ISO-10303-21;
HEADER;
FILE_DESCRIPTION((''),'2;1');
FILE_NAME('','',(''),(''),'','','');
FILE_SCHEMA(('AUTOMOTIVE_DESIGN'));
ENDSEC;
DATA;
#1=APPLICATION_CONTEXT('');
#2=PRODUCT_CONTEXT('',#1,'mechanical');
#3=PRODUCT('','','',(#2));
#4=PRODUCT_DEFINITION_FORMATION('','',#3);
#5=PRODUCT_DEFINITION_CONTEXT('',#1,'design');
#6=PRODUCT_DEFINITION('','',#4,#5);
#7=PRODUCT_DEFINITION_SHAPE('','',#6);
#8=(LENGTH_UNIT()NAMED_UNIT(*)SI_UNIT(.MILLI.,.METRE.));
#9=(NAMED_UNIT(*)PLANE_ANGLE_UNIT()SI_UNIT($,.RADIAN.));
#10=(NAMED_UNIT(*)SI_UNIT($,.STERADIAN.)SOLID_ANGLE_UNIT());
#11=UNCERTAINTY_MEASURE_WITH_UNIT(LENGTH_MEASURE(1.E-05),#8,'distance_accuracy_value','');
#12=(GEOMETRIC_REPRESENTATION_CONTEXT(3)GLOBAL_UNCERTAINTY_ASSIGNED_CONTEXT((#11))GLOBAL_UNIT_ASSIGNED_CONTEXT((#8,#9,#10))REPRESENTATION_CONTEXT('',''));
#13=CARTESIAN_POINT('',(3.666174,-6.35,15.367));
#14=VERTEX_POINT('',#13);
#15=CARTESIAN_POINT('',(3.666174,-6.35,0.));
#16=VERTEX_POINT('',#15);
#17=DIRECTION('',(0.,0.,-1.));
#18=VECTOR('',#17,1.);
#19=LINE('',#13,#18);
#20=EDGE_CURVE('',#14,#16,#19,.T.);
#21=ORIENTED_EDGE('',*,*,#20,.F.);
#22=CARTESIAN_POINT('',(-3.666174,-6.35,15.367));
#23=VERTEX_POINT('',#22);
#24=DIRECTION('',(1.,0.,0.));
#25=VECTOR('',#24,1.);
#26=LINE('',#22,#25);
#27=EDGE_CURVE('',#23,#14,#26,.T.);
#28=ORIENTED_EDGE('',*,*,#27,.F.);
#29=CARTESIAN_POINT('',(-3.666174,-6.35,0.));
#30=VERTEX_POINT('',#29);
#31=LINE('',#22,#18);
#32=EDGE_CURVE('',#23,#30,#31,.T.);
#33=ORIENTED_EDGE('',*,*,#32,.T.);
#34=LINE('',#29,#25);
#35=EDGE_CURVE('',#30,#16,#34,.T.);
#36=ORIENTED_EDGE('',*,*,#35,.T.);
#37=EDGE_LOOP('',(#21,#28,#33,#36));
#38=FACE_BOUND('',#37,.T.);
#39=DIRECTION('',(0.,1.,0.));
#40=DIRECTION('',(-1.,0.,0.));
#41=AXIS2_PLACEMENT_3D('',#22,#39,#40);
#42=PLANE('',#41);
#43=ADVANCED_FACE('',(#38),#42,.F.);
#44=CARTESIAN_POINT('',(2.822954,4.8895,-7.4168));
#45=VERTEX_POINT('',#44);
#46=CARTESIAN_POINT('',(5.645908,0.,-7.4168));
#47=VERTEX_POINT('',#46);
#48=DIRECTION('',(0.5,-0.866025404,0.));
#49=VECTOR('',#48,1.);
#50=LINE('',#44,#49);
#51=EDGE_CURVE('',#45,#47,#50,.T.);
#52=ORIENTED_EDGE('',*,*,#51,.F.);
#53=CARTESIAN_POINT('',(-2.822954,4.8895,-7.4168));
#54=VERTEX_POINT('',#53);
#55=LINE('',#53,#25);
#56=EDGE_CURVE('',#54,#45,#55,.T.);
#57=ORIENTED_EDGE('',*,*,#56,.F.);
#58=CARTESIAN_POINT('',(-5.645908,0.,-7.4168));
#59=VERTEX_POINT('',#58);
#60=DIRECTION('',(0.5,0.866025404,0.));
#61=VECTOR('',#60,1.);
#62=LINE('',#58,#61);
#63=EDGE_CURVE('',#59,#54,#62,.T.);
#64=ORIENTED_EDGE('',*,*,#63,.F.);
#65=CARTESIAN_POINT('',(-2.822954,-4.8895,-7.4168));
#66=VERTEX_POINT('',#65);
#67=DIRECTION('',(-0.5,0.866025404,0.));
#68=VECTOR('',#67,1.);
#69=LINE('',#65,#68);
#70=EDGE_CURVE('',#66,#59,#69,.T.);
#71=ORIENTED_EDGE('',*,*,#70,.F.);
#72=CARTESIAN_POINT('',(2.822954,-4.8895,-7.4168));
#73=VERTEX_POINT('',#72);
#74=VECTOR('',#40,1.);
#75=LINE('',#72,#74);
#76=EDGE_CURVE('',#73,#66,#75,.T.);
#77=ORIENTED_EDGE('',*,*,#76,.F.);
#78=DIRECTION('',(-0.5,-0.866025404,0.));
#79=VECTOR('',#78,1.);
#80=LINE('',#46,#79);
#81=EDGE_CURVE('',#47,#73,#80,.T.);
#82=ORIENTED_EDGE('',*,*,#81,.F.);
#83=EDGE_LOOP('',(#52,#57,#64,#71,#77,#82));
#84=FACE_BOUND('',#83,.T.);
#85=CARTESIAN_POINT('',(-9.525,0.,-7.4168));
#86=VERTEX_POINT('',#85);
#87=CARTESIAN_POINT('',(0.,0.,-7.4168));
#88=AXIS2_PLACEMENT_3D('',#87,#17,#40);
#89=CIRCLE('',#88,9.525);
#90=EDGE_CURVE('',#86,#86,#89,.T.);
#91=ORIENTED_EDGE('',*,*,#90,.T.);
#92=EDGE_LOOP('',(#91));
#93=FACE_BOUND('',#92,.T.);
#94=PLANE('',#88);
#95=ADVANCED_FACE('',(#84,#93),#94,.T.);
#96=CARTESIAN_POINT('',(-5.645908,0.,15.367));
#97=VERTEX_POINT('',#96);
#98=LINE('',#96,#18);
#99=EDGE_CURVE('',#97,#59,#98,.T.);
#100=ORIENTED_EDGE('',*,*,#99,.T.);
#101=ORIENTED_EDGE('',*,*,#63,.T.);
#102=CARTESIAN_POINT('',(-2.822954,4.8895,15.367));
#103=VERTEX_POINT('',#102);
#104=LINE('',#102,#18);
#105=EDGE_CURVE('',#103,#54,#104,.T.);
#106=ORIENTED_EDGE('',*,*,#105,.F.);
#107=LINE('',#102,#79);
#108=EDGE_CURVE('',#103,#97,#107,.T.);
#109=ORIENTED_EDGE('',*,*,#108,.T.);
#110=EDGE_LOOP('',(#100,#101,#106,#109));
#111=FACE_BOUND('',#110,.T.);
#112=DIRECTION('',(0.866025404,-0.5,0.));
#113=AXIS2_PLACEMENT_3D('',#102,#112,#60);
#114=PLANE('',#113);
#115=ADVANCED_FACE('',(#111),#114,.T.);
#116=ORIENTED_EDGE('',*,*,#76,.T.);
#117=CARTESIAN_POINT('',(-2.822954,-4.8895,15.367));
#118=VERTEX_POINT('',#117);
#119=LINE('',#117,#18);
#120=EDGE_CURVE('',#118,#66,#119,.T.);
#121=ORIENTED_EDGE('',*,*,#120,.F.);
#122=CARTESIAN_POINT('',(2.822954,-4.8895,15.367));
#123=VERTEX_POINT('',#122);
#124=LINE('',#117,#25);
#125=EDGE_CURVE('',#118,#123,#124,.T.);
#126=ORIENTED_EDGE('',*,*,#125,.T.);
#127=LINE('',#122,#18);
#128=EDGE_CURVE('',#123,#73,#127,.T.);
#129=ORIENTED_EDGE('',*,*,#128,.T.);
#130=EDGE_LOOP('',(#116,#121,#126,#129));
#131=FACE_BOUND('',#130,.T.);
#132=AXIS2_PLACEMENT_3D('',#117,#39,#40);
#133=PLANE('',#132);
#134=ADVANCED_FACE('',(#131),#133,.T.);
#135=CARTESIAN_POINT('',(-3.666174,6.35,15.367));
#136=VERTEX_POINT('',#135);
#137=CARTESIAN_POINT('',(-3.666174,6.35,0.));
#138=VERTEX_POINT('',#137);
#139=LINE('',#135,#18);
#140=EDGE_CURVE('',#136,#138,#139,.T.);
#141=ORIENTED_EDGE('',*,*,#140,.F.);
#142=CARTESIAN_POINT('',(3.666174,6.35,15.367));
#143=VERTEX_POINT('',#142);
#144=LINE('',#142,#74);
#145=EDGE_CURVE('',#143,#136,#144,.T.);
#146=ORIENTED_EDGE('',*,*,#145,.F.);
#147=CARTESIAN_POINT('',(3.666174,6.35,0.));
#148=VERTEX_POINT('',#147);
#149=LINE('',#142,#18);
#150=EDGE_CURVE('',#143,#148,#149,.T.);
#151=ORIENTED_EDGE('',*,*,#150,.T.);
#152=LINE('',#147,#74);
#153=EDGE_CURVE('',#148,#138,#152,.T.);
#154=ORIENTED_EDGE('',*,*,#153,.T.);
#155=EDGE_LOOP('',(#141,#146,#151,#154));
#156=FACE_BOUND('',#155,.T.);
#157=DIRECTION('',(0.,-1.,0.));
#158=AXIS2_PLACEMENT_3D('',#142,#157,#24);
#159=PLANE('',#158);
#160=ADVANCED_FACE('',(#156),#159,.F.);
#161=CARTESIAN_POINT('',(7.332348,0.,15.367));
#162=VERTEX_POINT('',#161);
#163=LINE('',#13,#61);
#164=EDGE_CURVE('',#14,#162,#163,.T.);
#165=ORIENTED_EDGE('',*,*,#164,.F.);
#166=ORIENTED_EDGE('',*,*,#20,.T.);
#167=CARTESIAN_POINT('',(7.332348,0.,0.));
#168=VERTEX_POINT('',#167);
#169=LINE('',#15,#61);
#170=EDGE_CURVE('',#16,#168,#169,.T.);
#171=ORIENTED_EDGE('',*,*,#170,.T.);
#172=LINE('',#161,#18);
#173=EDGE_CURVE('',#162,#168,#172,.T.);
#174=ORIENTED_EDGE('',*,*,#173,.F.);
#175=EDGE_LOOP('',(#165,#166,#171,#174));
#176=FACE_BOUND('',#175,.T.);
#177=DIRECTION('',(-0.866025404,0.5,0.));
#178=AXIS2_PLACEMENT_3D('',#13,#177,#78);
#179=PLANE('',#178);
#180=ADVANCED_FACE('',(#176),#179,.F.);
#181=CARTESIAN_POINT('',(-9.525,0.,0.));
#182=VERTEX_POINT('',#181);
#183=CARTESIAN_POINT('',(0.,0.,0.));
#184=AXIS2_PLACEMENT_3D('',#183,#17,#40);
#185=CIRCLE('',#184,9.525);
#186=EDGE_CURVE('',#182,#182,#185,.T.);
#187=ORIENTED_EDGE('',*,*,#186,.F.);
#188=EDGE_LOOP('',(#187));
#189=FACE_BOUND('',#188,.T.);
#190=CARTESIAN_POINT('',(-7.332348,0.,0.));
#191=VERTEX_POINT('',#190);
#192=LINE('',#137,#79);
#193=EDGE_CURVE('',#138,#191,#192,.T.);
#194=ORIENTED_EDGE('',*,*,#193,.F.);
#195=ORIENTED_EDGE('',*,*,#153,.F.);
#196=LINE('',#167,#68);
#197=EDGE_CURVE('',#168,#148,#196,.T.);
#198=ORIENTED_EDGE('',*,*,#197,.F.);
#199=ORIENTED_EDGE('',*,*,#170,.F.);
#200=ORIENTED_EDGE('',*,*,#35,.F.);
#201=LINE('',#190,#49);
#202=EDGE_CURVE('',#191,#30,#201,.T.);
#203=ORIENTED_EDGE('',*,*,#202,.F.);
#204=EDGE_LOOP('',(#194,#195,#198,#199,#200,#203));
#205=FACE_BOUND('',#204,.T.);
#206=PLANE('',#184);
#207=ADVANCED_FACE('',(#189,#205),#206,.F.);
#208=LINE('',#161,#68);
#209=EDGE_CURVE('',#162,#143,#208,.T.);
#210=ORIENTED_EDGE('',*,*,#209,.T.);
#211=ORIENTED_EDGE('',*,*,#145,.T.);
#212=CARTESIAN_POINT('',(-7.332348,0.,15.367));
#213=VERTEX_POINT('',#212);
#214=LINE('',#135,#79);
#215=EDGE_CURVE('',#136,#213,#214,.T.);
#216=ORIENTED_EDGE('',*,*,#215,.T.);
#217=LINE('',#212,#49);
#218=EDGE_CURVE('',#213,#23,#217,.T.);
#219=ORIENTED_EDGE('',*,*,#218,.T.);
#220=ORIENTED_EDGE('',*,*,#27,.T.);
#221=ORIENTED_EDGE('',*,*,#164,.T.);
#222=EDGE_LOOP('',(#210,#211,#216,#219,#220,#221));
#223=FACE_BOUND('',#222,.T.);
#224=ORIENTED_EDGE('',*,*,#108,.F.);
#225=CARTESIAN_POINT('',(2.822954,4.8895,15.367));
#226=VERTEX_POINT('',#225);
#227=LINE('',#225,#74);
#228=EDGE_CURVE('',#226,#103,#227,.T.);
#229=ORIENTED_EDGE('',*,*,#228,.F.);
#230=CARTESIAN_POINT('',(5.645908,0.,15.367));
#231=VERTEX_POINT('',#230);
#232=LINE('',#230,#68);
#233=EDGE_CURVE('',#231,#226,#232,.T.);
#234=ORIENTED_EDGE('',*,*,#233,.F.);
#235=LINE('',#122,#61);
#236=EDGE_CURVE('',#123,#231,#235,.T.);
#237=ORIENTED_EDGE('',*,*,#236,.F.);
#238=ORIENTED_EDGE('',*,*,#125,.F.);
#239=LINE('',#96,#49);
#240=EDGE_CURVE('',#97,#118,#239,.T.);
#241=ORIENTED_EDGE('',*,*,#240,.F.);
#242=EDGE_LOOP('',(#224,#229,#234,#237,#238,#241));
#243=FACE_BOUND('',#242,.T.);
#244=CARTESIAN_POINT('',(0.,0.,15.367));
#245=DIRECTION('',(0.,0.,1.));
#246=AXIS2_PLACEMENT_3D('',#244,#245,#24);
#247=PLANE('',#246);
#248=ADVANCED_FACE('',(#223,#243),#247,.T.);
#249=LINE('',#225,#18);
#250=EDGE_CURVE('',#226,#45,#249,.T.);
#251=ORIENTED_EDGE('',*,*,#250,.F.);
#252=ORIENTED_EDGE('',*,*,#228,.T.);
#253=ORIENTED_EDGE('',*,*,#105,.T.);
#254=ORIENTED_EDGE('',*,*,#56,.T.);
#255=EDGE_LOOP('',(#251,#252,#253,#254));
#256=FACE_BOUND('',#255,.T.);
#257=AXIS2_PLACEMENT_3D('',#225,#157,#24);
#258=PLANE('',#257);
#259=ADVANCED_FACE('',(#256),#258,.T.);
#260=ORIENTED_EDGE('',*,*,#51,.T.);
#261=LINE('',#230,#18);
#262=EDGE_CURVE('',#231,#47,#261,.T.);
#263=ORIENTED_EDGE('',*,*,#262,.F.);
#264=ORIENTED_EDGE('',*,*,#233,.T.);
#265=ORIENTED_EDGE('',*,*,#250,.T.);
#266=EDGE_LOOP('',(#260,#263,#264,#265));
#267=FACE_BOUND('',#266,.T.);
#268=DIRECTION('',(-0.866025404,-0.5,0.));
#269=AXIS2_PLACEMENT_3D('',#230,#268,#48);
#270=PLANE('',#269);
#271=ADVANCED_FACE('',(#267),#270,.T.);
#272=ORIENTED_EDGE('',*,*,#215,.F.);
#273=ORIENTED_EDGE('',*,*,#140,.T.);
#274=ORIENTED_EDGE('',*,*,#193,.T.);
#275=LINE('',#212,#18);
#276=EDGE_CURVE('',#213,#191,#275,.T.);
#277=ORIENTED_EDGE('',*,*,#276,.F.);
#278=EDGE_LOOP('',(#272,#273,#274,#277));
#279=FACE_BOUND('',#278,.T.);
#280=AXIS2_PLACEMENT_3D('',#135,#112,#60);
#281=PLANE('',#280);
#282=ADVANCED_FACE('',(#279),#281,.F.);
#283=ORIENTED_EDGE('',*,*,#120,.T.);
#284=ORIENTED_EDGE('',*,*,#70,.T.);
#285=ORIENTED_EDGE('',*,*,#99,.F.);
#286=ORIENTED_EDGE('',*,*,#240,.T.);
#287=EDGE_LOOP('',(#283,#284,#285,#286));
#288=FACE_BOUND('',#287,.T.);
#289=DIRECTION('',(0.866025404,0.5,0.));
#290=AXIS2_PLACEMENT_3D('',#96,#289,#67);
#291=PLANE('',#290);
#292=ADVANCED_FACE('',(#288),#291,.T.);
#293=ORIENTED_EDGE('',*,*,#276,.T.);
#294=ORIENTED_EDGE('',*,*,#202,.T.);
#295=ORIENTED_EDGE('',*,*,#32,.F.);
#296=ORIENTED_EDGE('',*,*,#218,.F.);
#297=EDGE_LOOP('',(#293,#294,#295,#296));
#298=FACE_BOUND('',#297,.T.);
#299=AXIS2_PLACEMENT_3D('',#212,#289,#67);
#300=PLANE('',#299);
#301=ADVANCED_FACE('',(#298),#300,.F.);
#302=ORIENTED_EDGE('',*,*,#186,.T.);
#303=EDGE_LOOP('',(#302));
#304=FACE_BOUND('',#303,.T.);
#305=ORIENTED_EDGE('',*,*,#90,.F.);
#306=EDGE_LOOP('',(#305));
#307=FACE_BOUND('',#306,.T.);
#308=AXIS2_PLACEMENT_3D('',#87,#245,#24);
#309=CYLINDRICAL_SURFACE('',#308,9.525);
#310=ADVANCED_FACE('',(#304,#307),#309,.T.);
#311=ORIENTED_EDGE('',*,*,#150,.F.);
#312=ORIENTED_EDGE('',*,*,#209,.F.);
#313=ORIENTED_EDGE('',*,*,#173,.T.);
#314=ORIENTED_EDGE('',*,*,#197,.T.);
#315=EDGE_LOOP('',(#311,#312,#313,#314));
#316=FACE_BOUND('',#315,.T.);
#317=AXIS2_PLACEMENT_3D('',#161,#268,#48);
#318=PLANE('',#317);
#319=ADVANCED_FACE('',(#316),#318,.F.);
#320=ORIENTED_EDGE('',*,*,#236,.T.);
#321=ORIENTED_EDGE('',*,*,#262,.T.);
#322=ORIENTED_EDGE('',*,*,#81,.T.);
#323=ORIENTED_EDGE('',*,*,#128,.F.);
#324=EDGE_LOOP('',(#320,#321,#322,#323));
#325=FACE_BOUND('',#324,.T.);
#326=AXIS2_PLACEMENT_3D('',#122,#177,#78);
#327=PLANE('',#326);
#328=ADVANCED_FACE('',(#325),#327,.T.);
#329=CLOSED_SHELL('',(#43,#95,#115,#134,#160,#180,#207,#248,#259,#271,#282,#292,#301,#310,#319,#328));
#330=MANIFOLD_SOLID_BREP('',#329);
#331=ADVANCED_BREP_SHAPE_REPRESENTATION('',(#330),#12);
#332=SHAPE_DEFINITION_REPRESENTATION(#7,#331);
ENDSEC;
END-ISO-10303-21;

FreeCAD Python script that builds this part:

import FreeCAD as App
import Part
import Sketcher
from FreeCAD import Vector
Q = App.Units.Quantity

doc = App.newDocument("Part")
body = doc.addObject("PartDesign::Body", "Body")

# Sketch on XY plane
sketch1 = doc.addObject("Sketcher::SketchObject", "Sketch")
body.addObject(sketch1)
sketch1.AttachmentSupport = (doc.XY_Plane, [""])
sketch1.MapMode = "FlatFace"
sketch1.addGeometry([
    Part.LineSegment(Vector(7, 0, 0), Vector(4, 6, 0)),  # 0
    Part.LineSegment(Vector(4, 6, 0), Vector(-4, 6, 0)),  # 1
    Part.LineSegment(Vector(-4, 6, 0), Vector(-7, 0, 0)),  # 2
    Part.LineSegment(Vector(-7, 0, 0), Vector(-4, -6, 0)),  # 3
    Part.LineSegment(Vector(-4, -6, 0), Vector(4, -6, 0)),  # 4
    Part.LineSegment(Vector(4, -6, 0), Vector(7, 0, 0)),  # 5
    Part.LineSegment(Vector(3, 5, 0), Vector(6, 0, 0)),  # 6
    Part.LineSegment(Vector(6, 0, 0), Vector(3, -5, 0)),  # 7
    Part.LineSegment(Vector(3, -5, 0), Vector(-3, -5, 0)),  # 8
    Part.LineSegment(Vector(-3, -5, 0), Vector(-6, 0, 0)),  # 9
    Part.LineSegment(Vector(-6, 0, 0), Vector(-3, 5, 0)),  # 10
    Part.LineSegment(Vector(-3, 5, 0), Vector(3, 5, 0)),  # 11
], False)
sketch1.addConstraint([
    Sketcher.Constraint("Coincident", 0, 2, 1, 1),
    Sketcher.Constraint("Coincident", 1, 2, 2, 1),
    Sketcher.Constraint("Coincident", 2, 2, 3, 1),
    Sketcher.Constraint("Coincident", 3, 2, 4, 1),
    Sketcher.Constraint("Coincident", 4, 2, 5, 1),
    Sketcher.Constraint("Coincident", 5, 2, 0, 1),
    Sketcher.Constraint("Coincident", 6, 2, 7, 1),
    Sketcher.Constraint("Coincident", 7, 2, 8, 1),
    Sketcher.Constraint("Coincident", 8, 2, 9, 1),
    Sketcher.Constraint("Coincident", 9, 2, 10, 1),
    Sketcher.Constraint("Coincident", 10, 2, 11, 1),
    Sketcher.Constraint("Coincident", 11, 2, 6, 1),
    Sketcher.Constraint("Horizontal", 1),
    Sketcher.Constraint("Horizontal", 4),
    Sketcher.Constraint("Horizontal", 8),
    Sketcher.Constraint("Horizontal", 11),
    Sketcher.Constraint("Symmetric", 0, 2, 3, 2, -1, 1),
    Sketcher.Constraint("Symmetric", 2, 2, 5, 2, -1, 1),
    Sketcher.Constraint("Symmetric", 6, 2, 9, 2, -1, 1),
    Sketcher.Constraint("Symmetric", 7, 2, 10, 2, -1, 1),
    Sketcher.Constraint("PointOnObject", 2, 2, -1),
    Sketcher.Constraint("PointOnObject", 6, 2, -1),
    Sketcher.Constraint("Parallel", 2, 5),
    Sketcher.Constraint("Parallel", 3, 6),
    Sketcher.Constraint("Parallel", 5, 7),
    Sketcher.Constraint("Parallel", 6, 9),
    Sketcher.Constraint("Vertical", 1, 2, 3, 2),
    Sketcher.Constraint("Angle", 0, Q("120 deg")),
    Sketcher.Constraint("DistanceY", 3, 2, 1, 2, Q("0.5 in")),
    Sketcher.Constraint("DistanceY", 7, 2, -1, 1, Q("0.1925 in")),
    Sketcher.Constraint("DistanceX", 1, 2, 1, 1, Q("7.332348 mm")),
    Sketcher.Constraint("DistanceX", 8, 2, 8, 1, Q("5.645908 mm")),
])
pad1 = doc.addObject("PartDesign::Pad", "Pad")
body.addObject(pad1)
pad1.Profile = sketch1
pad1.Length = Q("0.605 in")

# Sketch on XY plane
sketch2 = doc.addObject("Sketcher::SketchObject", "Sketch001")
body.addObject(sketch2)
sketch2.AttachmentSupport = (doc.XY_Plane, [""])
sketch2.MapMode = "FlatFace"
sketch2.addGeometry([
    Part.Circle(Vector(0, 0, 0), Vector(0, 0, 1), 10),  # 0
    Part.LineSegment(Vector(-3, 5, 0), Vector(-6, 0, 0)),  # 1
    Part.LineSegment(Vector(-6, 0, 0), Vector(-3, -5, 0)),  # 2
    Part.LineSegment(Vector(-3, -5, 0), Vector(3, -5, 0)),  # 3
    Part.LineSegment(Vector(3, -5, 0), Vector(6, 0, 0)),  # 4
    Part.LineSegment(Vector(6, 0, 0), Vector(3, 5, 0)),  # 5
    Part.LineSegment(Vector(3, 5, 0), Vector(-3, 5, 0)),  # 6
], False)
sketch2.addConstraint([
    Sketcher.Constraint("Coincident", 1, 2, 2, 1),
    Sketcher.Constraint("Coincident", 2, 2, 3, 1),
    Sketcher.Constraint("Coincident", 3, 2, 4, 1),
    Sketcher.Constraint("Coincident", 4, 2, 5, 1),
    Sketcher.Constraint("Coincident", 5, 2, 6, 1),
    Sketcher.Constraint("Coincident", 6, 2, 1, 1),
    Sketcher.Constraint("Horizontal", 3),
    Sketcher.Constraint("Horizontal", 6),
    Sketcher.Constraint("Coincident", 0, 3, -1, 1),
    Sketcher.Constraint("Symmetric", 1, 2, 4, 2, -1, 1),
    Sketcher.Constraint("Symmetric", 2, 2, 5, 2, -1, 1),
    Sketcher.Constraint("PointOnObject", 1, 2, -1),
    Sketcher.Constraint("Parallel", 1, 4),
    Sketcher.Constraint("Vertical", 3, 2, 5, 2),
    Sketcher.Constraint("Diameter", 0, Q("0.75 in")),
    Sketcher.Constraint("Angle", 1, Q("-120 deg")),
    Sketcher.Constraint("DistanceY", 3, 2, 5, 2, Q("0.385 in")),
    Sketcher.Constraint("DistanceX", 3, 1, 3, 2, Q("5.645908 mm")),
])
pad2 = doc.addObject("PartDesign::Pad", "Pad001")
body.addObject(pad2)
pad2.Profile = sketch2
pad2.Length = Q("0.292 in")
pad2.Reversed = True

doc.recompute()
